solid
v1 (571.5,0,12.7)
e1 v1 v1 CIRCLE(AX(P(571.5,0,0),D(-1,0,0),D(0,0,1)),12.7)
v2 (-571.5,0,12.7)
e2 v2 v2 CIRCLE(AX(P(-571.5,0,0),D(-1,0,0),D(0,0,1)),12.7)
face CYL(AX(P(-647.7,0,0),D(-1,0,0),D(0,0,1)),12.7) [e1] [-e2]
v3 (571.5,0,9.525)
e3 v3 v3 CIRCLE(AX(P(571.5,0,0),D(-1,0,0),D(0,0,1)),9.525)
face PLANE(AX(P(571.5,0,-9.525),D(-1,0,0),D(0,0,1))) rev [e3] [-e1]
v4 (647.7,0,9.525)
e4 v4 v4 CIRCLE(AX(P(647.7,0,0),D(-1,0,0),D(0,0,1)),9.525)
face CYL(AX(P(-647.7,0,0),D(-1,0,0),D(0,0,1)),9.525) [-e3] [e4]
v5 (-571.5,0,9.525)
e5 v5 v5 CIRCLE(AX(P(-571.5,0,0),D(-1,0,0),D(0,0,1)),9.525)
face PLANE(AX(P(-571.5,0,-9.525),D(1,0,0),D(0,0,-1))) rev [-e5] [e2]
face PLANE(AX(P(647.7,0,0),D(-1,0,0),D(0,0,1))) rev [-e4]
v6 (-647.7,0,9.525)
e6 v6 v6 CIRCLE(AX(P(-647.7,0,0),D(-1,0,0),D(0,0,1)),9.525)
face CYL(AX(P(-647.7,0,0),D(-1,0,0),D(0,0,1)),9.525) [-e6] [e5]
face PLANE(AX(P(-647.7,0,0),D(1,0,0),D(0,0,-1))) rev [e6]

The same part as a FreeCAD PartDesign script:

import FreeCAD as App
import Part
import Sketcher

V = App.Vector
Q = App.Units.Quantity


def add_polygon(sketch, points):
    """Adds a closed chain of lines whose ends are joined by coincident constraints."""
    first, n = sketch.GeometryCount, len(points)
    for a, b in zip(points, points[1:] + points[:1]):
        sketch.addGeometry(Part.LineSegment(App.Vector(*a, 0), App.Vector(*b, 0)), False)
    for i in range(n):
        sketch.addConstraint(Sketcher.Constraint("Coincident", first + i, 2, first + (i + 1) % n, 1))

doc = App.newDocument("Part")
body = doc.addObject("PartDesign::Body", "Body")

# Sketch on XZ plane
sketch1 = doc.addObject("Sketcher::SketchObject", "Sketch")
body.addObject(sketch1)
sketch1.AttachmentSupport = (doc.XZ_Plane, [""])
sketch1.MapMode = "FlatFace"
add_polygon(sketch1, [(-647.7, 0), (647.7, 0), (647.7, -9.5), (571.5, -9.5), (571.5, -12.7), (-571.5, -12.7), (-571.5, -9.5), (-647.7, -9.5)])  # lines 0-7
sketch1.addConstraint(Sketcher.Constraint("Horizontal", 0))
sketch1.addConstraint(Sketcher.Constraint("Vertical", 1))
sketch1.addConstraint(Sketcher.Constraint("Horizontal", 2))
sketch1.addConstraint(Sketcher.Constraint("Vertical", 3))
sketch1.addConstraint(Sketcher.Constraint("Horizontal", 4))
sketch1.addConstraint(Sketcher.Constraint("Vertical", 5))
sketch1.addConstraint(Sketcher.Constraint("Horizontal", 6))
sketch1.addConstraint(Sketcher.Constraint("Vertical", 7))
sketch1.addConstraint(Sketcher.Constraint("Symmetric", 0, 2, 7, 2, -1, 1))
sketch1.addConstraint(Sketcher.Constraint("Symmetric", 2, 2, 5, 2, -2))
sketch1.addConstraint(Sketcher.Constraint("DistanceX", 0, 1, 0, 2, Q("51 in")))
sketch1.addConstraint(Sketcher.Constraint("DistanceX", 2, 2, 2, 1, Q("3 in")))
sketch1.addConstraint(Sketcher.Constraint("DistanceY", 3, 2, -1, 1, Q("0.5 in")))
sketch1.addConstraint(Sketcher.Constraint("DistanceY", 1, 2, 1, 1, Q("0.375 in")))
revolution = doc.addObject("PartDesign::Revolution", "Revolution")
body.addObject(revolution)
revolution.Profile = sketch1
revolution.ReferenceAxis = (sketch1, ["H_Axis"])
revolution.Angle = 360

doc.recompute()
